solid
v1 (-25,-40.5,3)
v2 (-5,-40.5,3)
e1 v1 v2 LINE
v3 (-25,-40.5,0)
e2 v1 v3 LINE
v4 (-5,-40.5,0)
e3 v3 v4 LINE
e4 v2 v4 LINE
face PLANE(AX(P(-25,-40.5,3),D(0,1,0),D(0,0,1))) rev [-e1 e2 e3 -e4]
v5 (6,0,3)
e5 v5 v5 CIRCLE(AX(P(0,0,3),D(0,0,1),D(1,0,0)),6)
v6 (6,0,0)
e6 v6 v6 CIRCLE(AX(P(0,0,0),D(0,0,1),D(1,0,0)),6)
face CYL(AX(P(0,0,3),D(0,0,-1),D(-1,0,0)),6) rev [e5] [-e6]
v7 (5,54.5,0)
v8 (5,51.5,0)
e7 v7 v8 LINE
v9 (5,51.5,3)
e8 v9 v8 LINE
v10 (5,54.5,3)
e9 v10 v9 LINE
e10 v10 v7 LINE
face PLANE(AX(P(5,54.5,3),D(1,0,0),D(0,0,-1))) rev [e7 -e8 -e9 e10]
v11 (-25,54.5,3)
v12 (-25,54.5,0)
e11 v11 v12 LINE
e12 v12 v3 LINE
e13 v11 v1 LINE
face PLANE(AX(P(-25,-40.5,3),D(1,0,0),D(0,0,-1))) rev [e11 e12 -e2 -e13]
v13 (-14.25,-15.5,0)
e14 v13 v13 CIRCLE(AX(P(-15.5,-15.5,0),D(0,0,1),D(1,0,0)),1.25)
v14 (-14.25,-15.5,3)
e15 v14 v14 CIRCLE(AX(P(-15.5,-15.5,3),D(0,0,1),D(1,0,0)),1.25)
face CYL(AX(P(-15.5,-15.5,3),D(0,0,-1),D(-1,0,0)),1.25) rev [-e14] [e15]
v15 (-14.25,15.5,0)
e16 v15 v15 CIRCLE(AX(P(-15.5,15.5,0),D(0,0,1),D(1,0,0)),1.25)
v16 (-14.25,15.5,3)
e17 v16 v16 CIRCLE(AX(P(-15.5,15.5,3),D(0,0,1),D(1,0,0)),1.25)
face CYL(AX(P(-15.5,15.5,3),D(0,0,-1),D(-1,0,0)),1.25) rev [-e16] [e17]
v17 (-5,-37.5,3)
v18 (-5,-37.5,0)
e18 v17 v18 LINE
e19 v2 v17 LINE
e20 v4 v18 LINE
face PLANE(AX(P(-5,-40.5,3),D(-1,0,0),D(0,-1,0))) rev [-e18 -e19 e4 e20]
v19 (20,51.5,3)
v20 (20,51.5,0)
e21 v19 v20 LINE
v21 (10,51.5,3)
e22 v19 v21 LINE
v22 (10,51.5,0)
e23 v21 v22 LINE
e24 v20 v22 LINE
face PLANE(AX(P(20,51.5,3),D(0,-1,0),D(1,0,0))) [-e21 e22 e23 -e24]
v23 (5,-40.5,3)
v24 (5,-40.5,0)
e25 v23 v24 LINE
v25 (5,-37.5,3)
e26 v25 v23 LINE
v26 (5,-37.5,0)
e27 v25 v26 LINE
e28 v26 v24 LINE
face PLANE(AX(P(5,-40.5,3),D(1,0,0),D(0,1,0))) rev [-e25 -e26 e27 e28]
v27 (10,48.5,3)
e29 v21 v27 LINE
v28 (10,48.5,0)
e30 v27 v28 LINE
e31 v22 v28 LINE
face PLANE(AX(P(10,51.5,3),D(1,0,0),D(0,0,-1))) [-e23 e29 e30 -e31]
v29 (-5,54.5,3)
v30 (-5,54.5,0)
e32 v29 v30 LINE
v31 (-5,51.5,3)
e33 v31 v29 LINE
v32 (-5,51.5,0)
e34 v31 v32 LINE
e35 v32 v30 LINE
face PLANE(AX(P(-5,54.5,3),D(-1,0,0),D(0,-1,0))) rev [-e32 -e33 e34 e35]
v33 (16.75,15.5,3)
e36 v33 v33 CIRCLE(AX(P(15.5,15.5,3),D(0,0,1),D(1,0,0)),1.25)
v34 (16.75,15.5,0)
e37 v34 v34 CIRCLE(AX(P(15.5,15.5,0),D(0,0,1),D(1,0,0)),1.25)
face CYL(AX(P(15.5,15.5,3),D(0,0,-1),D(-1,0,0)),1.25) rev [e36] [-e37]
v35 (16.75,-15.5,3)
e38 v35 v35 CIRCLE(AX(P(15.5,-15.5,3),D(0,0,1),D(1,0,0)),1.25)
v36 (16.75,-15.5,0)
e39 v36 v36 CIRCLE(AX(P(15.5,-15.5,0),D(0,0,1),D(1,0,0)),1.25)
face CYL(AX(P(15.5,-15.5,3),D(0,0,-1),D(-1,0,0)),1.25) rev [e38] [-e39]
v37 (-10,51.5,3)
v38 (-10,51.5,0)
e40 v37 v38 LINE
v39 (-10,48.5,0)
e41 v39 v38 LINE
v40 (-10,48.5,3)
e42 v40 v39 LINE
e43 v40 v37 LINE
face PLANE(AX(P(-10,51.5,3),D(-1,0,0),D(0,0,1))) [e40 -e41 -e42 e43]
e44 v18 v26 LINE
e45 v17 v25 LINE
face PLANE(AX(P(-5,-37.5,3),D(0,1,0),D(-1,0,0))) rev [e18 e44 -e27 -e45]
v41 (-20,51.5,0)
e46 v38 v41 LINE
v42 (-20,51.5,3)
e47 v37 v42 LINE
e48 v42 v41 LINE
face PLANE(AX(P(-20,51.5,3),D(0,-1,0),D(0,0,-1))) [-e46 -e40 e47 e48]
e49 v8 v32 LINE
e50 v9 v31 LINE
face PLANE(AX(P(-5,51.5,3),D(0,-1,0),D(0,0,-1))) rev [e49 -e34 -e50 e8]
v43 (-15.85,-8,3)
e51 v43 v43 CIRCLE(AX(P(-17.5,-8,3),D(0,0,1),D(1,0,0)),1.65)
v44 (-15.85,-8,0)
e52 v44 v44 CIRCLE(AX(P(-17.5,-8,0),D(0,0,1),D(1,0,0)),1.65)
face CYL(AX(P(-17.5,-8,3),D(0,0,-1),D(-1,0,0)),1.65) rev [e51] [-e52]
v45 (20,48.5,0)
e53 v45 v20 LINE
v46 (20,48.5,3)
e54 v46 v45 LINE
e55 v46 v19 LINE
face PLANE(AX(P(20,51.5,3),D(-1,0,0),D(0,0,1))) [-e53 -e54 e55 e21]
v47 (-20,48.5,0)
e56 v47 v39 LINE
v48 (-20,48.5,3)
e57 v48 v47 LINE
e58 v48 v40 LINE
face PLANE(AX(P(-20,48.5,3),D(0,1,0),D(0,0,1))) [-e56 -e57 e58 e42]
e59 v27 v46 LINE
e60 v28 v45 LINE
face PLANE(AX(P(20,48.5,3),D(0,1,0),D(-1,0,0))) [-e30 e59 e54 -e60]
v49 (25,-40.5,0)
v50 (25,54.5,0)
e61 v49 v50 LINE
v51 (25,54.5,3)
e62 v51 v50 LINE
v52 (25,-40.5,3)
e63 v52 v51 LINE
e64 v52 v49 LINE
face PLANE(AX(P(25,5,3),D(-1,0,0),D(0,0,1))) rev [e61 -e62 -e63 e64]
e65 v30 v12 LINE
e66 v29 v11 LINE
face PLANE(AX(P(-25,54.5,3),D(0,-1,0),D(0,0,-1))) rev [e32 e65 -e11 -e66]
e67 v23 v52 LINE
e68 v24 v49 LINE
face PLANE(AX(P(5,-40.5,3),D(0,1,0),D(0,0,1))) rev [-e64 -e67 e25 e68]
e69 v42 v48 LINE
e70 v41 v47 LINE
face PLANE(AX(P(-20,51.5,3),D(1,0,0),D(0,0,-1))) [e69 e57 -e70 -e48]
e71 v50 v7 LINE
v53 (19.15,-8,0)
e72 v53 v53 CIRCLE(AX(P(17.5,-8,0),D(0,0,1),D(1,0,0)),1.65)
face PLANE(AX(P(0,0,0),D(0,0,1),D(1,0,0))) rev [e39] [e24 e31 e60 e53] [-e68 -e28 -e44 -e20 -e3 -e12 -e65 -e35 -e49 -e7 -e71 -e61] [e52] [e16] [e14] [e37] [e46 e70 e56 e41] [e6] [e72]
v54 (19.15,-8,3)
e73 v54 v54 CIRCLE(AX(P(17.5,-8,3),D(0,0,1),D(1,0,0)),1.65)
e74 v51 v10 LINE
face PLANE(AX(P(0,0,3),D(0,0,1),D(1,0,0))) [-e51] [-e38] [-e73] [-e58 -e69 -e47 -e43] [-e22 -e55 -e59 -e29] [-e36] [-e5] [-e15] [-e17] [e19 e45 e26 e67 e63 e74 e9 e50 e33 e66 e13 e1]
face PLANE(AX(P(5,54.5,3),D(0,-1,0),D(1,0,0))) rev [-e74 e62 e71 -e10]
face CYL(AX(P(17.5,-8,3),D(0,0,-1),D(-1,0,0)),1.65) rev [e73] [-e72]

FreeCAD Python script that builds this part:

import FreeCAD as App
import Part
import Sketcher
from FreeCAD import Vector


def add_polygon(sketch, points):
    """Adds a closed chain of lines whose ends are joined by coincident constraints."""
    first, n = sketch.GeometryCount, len(points)
    for a, b in zip(points, points[1:] + points[:1]):
        sketch.addGeometry(Part.LineSegment(App.Vector(*a, 0), App.Vector(*b, 0)), False)
    for i in range(n):
        sketch.addConstraint(Sketcher.Constraint("Coincident", first + i, 2, first + (i + 1) % n, 1))

doc = App.newDocument("Part")
params = doc.addObject("Spreadsheet::Sheet", "Params")
for row, (alias, value) in enumerate([
    ("sketch1_diameter", "12 mm"),
    ("sketch1_diameter2", "2.5 mm"),
    ("sketch1_diameter3", "3.3 mm"),
    ("sketch1_width", "20 mm"),
    ("sketch1_width2", "10 mm"),
    ("pad1_length", "3 mm"),
], start=1):
    params.set(f"A{row}", alias)
    params.set(f"B{row}", "=" + value)
    params.setAlias(f"B{row}", alias)

body = doc.addObject("PartDesign::Body", "Body")

# Sketch on XY plane
sketch1 = body.newObject("Sketcher::SketchObject", "Sketch")
sketch1.AttachmentSupport = (doc.getObject("XY_Plane"), [""])
sketch1.MapMode = "FlatFace"
add_polygon(sketch1, [(25, -40.5), (25, 54.5), (5, 54.5), (5, 51.5), (-5, 51.5), (-5, 54.5), (-25, 54.5), (-25, -40.5), (-5, -40.5), (-5, -37.5), (5, -37.5), (5, -40.5)])  # lines 0-11
sketch1.addGeometry(Part.Circle(Vector(15.5, -15.5, 0), Vector(0, 0, 1), 1.25), False)  # 12
sketch1.addGeometry(Part.Circle(Vector(17.5, -8, 0), Vector(0, 0, 1), 1.65), False)  # 13
sketch1.addGeometry(Part.Circle(Vector(15.5, 15.5, 0), Vector(0, 0, 1), 1.25), False)  # 14
sketch1.addGeometry(Part.Circle(Vector(0, 0, 0), Vector(0, 0, 1), 6), False)  # 15
sketch1.addGeometry(Part.Circle(Vector(-15.5, -15.5, 0), Vector(0, 0, 1), 1.25), False)  # 16
sketch1.addGeometry(Part.Circle(Vector(-17.5, -8, 0), Vector(0, 0, 1), 1.65), False)  # 17
sketch1.addGeometry(Part.Circle(Vector(-15.5, 15.5, 0), Vector(0, 0, 1), 1.25), False)  # 18
add_polygon(sketch1, [(10, 48.5), (10, 51.5), (20, 51.5), (20, 48.5)])  # lines 19-22
add_polygon(sketch1, [(-20, 48.5), (-20, 51.5), (-10, 51.5), (-10, 48.5)])  # lines 23-26
sketch1.addConstraint(Sketcher.Constraint("Vertical", 0))
sketch1.addConstraint(Sketcher.Constraint("Horizontal", 1))
sketch1.addConstraint(Sketcher.Constraint("Vertical", 2))
sketch1.addConstraint(Sketcher.Constraint("Horizontal", 3))
sketch1.addConstraint(Sketcher.Constraint("Vertical", 4))
sketch1.addConstraint(Sketcher.Constraint("Horizontal", 5))
sketch1.addConstraint(Sketcher.Constraint("Vertical", 6))
sketch1.addConstraint(Sketcher.Constraint("Horizontal", 7))
sketch1.addConstraint(Sketcher.Constraint("Vertical", 8))
sketch1.addConstraint(Sketcher.Constraint("Horizontal", 9))
sketch1.addConstraint(Sketcher.Constraint("Vertical", 10))
sketch1.addConstraint(Sketcher.Constraint("Horizontal", 11))
sketch1.addConstraint(Sketcher.Constraint("Vertical", 19))
sketch1.addConstraint(Sketcher.Constraint("Horizontal", 20))
sketch1.addConstraint(Sketcher.Constraint("Vertical", 21))
sketch1.addConstraint(Sketcher.Constraint("Horizontal", 22))
sketch1.addConstraint(Sketcher.Constraint("Vertical", 23))
sketch1.addConstraint(Sketcher.Constraint("Horizontal", 24))
sketch1.addConstraint(Sketcher.Constraint("Vertical", 25))
sketch1.addConstraint(Sketcher.Constraint("Horizontal", 26))
sketch1.addConstraint(Sketcher.Constraint("Coincident", 15, 3, -1, 1))
sketch1.addConstraint(Sketcher.Constraint("Equal", 12, 14))
sketch1.addConstraint(Sketcher.Constraint("Equal", 14, 16))
sketch1.addConstraint(Sketcher.Constraint("Equal", 13, 17))
sketch1.addConstraint(Sketcher.Constraint("Equal", 16, 18))
sketch1.addConstraint(Sketcher.Constraint("Symmetric", 14, 3, 16, 3, -1, 1))
sketch1.addConstraint(Sketcher.Constraint("Symmetric", 12, 3, 18, 3, -1, 1))
sketch1.addConstraint(Sketcher.Constraint("Symmetric", 12, 3, 16, 3, -2))
sketch1.addConstraint(Sketcher.Constraint("Symmetric", 13, 3, 17, 3, -2))
sketch1.addConstraint(Sketcher.Constraint("Symmetric", 1, 2, 4, 2, -2))
sketch1.addConstraint(Sketcher.Constraint("Symmetric", 7, 2, 10, 2, -2))
sketch1.addConstraint(Sketcher.Constraint("Symmetric", 20, 2, 23, 2, -2))
sketch1.addConstraint(Sketcher.Constraint("Symmetric", 22, 2, 25, 2, -2))
sketch1.addConstraint(Sketcher.Constraint("Horizontal", 3, 2, 19, 2))
sketch1.addConstraint(Sketcher.Constraint("Vertical", 4, 2, 7, 2))
sketch1.addConstraint(Sketcher.Constraint("Equal", 1, 5))
sketch1.addConstraint(Sketcher.Constraint("Equal", 9, 20))
sketch1.addConstraint(Sketcher.Constraint("Equal", 4, 8))
sketch1.addConstraint(Sketcher.Constraint("Equal", 10, 19))
sketch1.addConstraint(Sketcher.Constraint("Diameter", 15, 12.0))
sketch1.addConstraint(Sketcher.Constraint("Diameter", 12, 2.5))
sketch1.addConstraint(Sketcher.Constraint("Diameter", 13, 3.3))
sketch1.addConstraint(Sketcher.Constraint("DistanceX", 1, 2, 1, 1, 20.0))
sketch1.addConstraint(Sketcher.Constraint("DistanceX", 3, 2, 3, 1, 10.0))
sketch1.addConstraint(Sketcher.Constraint("DistanceY", 0, 1, 0, 2, 95.0))
sketch1.addConstraint(Sketcher.Constraint("DistanceY", 2, 2, 2, 1, 3.0))
sketch1.addConstraint(Sketcher.Constraint("DistanceY", 13, 3, -1, 1, 8.0))
sketch1.addConstraint(Sketcher.Constraint("DistanceX", -1, 1, 19, 2, 10.0))
sketch1.addConstraint(Sketcher.Constraint("DistanceX", 12, 3, 13, 3, 2.0))
sketch1.addConstraint(Sketcher.Constraint("DistanceY", 12, 3, 14, 3, 31.0))
sketch1.addConstraint(Sketcher.Constraint("DistanceX", 16, 3, 12, 3, 31.0))
sketch1.addConstraint(Sketcher.Constraint("DistanceY", 14, 3, 0, 2, 39.0))
sketch1.setExpression("Constraints[59]", "Params.sketch1_diameter")
sketch1.setExpression("Constraints[60]", "Params.sketch1_diameter2")
sketch1.setExpression("Constraints[61]", "Params.sketch1_diameter3")
sketch1.setExpression("Constraints[62]", "Params.sketch1_width")
sketch1.setExpression("Constraints[63]", "Params.sketch1_width2")
pad1 = body.newObject("PartDesign::Pad", "Pad")
pad1.Profile = sketch1
pad1.setExpression("Length", "Params.pad1_length")

doc.recompute()
